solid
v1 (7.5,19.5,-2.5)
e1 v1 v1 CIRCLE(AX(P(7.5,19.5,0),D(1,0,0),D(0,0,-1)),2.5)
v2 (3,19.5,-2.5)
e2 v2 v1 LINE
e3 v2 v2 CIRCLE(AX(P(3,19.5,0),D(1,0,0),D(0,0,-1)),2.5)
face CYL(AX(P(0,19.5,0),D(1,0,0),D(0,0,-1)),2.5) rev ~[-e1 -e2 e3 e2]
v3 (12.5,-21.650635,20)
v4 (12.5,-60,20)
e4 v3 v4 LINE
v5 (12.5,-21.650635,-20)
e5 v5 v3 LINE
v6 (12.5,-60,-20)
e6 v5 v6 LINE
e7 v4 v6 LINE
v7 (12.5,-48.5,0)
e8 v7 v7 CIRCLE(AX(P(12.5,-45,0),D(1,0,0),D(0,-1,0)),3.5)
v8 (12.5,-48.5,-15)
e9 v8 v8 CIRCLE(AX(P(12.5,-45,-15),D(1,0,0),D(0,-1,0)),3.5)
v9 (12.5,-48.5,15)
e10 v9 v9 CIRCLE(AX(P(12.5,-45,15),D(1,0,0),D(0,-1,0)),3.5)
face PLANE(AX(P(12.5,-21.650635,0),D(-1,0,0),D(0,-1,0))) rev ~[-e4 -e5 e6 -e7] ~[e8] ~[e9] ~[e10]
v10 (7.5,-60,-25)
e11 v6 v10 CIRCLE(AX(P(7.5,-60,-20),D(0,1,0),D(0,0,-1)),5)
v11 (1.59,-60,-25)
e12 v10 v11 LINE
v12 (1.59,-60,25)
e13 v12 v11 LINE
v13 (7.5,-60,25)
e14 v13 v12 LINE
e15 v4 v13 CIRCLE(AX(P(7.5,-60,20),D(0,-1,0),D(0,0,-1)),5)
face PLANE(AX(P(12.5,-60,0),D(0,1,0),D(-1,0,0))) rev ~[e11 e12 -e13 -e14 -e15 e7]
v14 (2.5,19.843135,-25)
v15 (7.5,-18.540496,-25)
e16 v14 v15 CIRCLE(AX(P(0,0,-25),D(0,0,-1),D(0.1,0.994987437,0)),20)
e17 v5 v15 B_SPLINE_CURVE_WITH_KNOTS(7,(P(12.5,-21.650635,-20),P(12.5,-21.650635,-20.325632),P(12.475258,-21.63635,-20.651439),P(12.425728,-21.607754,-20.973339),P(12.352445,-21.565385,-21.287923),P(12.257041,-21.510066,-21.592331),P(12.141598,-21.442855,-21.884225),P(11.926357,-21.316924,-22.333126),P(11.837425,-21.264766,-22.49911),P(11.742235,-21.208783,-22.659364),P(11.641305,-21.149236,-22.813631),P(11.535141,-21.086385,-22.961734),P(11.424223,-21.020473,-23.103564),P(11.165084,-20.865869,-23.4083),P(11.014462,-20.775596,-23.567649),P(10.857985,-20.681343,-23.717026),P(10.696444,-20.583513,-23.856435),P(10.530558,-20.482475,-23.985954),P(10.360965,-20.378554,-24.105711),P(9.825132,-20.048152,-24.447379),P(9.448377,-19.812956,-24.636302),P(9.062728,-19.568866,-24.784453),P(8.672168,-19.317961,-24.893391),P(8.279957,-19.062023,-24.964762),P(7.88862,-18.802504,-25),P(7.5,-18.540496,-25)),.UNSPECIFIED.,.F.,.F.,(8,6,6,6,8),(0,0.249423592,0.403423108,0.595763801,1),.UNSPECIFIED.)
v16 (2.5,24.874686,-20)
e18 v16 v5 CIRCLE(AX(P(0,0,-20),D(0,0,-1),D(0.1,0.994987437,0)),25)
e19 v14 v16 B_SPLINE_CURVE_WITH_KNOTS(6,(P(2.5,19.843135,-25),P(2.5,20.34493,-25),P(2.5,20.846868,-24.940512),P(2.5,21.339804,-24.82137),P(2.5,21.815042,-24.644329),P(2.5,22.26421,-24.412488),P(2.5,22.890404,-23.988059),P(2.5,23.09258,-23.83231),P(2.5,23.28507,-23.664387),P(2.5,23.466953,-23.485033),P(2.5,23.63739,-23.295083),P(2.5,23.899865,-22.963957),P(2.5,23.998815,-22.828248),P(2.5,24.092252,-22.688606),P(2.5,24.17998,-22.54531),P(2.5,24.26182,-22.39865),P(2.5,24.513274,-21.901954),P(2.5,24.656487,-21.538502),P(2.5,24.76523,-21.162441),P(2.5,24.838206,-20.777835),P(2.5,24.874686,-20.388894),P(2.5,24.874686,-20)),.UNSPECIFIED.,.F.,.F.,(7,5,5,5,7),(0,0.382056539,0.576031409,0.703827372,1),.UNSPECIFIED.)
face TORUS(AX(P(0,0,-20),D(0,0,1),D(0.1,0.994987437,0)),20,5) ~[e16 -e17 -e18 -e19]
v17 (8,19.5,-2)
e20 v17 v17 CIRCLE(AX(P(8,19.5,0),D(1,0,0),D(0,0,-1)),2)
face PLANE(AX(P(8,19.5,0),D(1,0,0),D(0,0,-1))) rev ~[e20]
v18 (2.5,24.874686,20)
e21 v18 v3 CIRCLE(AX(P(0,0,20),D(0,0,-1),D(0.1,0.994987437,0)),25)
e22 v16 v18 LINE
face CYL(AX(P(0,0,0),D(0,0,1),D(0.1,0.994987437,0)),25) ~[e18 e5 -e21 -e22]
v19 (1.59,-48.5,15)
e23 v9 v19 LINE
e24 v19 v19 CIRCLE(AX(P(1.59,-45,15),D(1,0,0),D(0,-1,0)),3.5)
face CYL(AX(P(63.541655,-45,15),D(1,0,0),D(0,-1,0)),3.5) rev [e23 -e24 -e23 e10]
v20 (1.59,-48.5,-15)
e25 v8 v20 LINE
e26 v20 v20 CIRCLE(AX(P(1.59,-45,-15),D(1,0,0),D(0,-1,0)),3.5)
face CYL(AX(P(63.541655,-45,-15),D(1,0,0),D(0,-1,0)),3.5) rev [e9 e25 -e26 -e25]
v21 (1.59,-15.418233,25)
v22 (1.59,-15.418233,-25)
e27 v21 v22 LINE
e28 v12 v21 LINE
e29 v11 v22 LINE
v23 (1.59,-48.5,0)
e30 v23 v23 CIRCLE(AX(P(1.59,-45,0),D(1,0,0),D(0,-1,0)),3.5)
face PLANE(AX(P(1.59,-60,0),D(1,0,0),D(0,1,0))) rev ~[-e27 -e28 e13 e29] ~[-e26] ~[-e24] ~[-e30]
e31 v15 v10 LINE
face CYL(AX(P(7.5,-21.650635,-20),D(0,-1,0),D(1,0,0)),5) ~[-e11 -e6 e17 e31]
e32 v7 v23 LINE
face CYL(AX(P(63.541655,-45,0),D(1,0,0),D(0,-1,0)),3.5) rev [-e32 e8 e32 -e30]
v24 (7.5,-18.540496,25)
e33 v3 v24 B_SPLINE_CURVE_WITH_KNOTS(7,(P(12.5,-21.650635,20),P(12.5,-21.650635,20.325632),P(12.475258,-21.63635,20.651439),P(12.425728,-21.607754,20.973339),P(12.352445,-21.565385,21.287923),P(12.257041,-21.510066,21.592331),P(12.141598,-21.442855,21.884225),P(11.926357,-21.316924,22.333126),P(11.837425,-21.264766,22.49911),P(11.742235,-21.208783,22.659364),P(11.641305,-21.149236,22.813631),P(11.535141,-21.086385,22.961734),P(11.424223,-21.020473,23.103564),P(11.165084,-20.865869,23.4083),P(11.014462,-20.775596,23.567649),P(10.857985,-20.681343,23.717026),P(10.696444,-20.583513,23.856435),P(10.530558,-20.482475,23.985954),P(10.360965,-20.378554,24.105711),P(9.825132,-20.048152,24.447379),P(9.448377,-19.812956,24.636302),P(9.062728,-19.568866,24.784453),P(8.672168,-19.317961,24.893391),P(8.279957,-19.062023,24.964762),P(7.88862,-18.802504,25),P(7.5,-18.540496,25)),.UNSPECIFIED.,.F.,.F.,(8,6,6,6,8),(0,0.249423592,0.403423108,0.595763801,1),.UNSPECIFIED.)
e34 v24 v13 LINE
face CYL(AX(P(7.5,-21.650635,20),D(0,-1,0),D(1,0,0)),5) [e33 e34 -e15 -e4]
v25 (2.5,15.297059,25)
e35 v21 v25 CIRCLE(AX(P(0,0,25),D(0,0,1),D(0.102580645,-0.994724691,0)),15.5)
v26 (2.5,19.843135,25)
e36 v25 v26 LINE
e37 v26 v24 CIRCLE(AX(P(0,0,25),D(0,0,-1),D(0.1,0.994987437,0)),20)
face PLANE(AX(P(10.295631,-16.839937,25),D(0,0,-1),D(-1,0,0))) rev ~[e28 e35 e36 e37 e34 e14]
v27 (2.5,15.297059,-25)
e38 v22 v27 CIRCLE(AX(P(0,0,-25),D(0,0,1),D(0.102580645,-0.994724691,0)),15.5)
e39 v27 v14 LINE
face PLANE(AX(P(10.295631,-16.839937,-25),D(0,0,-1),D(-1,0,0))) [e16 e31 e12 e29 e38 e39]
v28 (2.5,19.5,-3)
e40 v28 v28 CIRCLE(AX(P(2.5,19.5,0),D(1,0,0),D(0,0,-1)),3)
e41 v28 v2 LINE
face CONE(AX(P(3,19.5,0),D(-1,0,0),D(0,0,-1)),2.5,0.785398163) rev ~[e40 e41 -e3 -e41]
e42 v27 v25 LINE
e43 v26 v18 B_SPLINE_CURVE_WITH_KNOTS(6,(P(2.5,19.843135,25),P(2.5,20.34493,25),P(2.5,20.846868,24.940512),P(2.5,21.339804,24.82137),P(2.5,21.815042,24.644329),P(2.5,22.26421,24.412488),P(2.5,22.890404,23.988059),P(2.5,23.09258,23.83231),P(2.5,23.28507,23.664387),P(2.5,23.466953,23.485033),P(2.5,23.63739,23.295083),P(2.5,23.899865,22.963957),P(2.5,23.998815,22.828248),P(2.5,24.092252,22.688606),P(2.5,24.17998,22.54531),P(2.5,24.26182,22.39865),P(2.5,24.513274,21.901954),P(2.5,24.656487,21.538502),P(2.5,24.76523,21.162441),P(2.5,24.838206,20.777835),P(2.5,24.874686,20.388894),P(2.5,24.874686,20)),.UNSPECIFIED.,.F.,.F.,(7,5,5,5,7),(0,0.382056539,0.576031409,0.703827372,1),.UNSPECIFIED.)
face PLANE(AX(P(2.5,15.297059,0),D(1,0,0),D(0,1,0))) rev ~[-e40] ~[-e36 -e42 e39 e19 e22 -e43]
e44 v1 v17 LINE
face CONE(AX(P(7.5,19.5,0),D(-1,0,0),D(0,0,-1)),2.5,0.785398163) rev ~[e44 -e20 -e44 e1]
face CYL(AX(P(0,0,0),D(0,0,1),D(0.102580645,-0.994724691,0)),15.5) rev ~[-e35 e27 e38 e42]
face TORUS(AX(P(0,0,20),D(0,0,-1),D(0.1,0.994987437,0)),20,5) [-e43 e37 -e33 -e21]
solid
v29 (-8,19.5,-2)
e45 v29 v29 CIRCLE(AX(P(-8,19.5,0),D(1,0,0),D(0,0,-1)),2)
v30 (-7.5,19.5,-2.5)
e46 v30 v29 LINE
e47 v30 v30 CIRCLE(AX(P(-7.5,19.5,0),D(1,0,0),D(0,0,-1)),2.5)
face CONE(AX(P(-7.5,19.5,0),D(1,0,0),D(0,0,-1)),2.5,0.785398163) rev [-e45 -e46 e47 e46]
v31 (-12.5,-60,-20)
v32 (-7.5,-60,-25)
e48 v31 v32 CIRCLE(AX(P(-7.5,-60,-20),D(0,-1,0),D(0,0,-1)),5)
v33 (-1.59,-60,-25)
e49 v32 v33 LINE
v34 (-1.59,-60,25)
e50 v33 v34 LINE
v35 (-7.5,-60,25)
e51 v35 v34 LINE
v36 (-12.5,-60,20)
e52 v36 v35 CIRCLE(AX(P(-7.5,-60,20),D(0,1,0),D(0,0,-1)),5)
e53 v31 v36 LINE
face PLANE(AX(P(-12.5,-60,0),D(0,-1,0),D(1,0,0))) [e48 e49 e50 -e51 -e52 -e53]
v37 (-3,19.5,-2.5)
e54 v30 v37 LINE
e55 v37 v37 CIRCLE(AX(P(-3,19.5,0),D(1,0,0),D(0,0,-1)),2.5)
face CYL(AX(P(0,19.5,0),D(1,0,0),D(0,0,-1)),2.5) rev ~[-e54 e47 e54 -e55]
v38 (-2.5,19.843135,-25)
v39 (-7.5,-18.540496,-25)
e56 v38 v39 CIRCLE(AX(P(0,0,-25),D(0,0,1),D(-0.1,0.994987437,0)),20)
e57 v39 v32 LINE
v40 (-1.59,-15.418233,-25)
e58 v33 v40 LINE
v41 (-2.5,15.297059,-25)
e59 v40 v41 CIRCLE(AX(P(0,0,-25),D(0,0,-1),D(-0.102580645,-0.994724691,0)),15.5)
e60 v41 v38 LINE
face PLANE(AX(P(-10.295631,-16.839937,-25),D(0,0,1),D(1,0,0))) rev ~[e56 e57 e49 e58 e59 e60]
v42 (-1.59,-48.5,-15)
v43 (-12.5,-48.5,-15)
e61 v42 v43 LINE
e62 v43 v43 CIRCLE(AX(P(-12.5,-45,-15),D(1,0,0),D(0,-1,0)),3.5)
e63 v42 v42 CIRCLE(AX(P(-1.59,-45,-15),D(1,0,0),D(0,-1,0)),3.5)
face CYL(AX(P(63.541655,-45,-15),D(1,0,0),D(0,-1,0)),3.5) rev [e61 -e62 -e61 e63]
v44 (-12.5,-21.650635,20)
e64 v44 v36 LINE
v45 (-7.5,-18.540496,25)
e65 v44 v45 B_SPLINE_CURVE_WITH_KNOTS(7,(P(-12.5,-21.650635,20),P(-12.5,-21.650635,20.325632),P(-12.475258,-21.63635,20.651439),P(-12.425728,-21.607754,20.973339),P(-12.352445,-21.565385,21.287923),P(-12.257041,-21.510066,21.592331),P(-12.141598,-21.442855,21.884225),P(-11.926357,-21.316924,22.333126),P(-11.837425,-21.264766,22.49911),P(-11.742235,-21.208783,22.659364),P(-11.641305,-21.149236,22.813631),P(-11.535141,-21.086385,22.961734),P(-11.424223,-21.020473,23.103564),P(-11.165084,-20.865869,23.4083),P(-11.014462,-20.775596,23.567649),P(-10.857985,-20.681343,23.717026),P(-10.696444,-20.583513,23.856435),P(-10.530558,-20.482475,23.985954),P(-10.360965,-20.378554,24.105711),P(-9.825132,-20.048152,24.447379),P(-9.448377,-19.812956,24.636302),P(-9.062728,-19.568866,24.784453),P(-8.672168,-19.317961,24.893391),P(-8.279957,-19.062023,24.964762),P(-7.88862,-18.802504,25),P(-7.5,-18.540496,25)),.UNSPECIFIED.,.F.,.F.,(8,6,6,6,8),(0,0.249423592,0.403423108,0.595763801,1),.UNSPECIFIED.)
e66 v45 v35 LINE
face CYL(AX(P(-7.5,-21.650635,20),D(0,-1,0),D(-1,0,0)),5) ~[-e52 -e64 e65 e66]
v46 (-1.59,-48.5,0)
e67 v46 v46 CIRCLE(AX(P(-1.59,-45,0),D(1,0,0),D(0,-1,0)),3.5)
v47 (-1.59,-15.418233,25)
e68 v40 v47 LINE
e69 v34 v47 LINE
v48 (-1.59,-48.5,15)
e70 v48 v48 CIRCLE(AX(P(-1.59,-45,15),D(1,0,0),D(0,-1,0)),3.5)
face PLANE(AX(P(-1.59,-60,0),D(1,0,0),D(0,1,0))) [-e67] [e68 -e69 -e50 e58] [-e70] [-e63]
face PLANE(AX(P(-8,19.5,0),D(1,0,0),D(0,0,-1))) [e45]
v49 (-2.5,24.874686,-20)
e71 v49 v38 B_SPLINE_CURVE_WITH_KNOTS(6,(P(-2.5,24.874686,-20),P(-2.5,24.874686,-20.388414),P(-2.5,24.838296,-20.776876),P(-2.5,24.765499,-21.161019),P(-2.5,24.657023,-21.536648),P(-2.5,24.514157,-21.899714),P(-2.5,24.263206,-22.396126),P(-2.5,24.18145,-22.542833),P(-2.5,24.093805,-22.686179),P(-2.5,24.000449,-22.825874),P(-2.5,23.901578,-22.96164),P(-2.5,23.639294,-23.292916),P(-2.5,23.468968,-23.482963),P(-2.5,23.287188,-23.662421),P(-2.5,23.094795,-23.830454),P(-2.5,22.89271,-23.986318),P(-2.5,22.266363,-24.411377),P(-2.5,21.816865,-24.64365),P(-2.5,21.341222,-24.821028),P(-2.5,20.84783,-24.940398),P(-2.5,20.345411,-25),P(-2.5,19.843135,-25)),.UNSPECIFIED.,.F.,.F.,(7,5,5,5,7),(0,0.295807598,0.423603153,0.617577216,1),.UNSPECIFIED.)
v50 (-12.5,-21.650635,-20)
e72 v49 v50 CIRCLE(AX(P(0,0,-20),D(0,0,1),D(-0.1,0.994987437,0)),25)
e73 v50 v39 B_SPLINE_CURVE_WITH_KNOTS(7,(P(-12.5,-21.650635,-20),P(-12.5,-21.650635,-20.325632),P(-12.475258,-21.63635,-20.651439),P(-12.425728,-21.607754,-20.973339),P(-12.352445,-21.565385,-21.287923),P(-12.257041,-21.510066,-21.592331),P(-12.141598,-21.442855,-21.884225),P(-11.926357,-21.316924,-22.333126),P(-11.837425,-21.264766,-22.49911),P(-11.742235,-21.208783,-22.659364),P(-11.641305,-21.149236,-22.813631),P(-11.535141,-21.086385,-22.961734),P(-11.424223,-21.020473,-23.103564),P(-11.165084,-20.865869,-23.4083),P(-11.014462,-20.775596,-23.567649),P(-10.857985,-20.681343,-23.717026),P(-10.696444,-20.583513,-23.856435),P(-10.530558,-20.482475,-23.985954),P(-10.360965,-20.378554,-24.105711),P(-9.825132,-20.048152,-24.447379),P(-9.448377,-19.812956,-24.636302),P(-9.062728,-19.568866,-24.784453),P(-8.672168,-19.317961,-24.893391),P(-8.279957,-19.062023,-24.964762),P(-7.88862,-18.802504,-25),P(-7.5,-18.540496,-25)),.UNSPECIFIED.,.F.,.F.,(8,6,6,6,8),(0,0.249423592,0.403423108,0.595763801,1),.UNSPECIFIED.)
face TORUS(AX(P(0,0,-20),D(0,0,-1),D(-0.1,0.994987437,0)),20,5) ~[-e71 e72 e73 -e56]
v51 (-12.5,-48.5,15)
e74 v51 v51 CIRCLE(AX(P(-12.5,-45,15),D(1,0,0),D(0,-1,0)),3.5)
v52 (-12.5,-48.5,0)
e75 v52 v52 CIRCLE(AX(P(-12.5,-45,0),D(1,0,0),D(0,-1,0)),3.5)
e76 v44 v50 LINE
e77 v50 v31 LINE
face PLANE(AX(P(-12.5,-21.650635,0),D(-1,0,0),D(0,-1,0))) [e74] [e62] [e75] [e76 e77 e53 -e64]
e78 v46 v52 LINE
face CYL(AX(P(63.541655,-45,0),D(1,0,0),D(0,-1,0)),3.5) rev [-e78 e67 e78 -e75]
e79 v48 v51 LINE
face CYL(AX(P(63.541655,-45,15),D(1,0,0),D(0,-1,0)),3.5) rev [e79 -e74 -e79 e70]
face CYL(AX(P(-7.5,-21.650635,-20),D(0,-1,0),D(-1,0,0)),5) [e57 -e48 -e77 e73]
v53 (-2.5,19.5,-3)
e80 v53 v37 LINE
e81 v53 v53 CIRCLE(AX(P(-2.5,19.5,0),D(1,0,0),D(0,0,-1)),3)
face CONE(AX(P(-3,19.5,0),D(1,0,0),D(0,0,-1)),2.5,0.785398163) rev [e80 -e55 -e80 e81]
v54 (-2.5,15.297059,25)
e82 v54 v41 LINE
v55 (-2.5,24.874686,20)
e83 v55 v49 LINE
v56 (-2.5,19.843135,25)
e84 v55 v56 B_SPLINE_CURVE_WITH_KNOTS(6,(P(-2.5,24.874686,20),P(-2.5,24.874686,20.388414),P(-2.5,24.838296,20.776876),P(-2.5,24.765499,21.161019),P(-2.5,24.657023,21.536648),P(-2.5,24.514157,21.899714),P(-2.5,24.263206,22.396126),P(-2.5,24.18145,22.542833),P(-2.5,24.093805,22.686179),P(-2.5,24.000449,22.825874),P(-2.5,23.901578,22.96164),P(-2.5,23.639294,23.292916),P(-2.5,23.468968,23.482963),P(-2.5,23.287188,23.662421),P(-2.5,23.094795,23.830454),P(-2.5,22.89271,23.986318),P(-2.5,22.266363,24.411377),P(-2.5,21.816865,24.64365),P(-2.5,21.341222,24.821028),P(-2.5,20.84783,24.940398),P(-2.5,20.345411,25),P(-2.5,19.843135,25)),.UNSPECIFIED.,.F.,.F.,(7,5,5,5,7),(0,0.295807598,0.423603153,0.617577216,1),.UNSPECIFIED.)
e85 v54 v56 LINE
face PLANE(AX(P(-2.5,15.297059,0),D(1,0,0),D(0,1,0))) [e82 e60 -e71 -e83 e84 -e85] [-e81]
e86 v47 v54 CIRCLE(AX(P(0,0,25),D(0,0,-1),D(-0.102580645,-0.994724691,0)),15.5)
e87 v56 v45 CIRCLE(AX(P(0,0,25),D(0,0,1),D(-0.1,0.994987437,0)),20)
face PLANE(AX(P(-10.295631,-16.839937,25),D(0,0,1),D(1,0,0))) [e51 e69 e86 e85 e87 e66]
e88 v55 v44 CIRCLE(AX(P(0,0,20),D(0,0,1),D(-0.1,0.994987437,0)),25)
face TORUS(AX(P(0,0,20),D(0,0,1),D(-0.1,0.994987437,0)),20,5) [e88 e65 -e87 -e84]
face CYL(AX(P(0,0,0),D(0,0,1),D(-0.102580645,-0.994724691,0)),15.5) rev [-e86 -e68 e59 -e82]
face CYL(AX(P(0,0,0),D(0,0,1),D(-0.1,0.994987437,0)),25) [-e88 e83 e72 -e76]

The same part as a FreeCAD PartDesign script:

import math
import FreeCAD as App
import Part
import Sketcher
Q = App.Units.Quantity


def edges_at(feature, points):
    """Names of the edges that pass closest to the given points."""
    edges = feature.Shape.Edges
    near = lambda p: min(range(len(edges)), key=lambda i: edges[i].distToShape(Part.Vertex(*p))[0])
    return sorted({f"Edge{near(p) + 1}" for p in points})

doc = App.newDocument("Part")
body = doc.addObject("PartDesign::Body", "Body")

# Sketch on XY plane
sketch1 = body.newObject("Sketcher::SketchObject", "Sketch")
sketch1.AttachmentSupport = (doc.getObject("XY_Plane"), [""])
sketch1.MapMode = "FlatFace"
sketch1.addGeometry([
    Part.LineSegment(App.Vector(-12.5, -21.650635, 0), App.Vector(-12.5, -60, 0)),  # 0
    Part.LineSegment(App.Vector(-12.5, -60, 0), App.Vector(-1.59, -60, 0)),  # 1
    Part.LineSegment(App.Vector(-1.59, -60, 0), App.Vector(-1.59, -15.418233, 0)),  # 2
    Part.ArcOfCircle(Part.Circle(App.Vector(0, 0, 0), App.Vector(0, 0, 1), 15.5), math.radians(99.281799), math.radians(264.112205)),  # 3
    Part.LineSegment(App.Vector(-2.5, 15.297059, 0), App.Vector(-2.5, 24.874686, 0)),  # 4
    Part.ArcOfCircle(Part.Circle(App.Vector(0, 0, 0), App.Vector(0, 0, 1), 25), math.radians(95.73917), math.radians(240)),  # 5
], False)
sketch1.addConstraint([
    Sketcher.Constraint("Coincident", 0, 2, 1, 1),
    Sketcher.Constraint("Coincident", 1, 2, 2, 1),
    Sketcher.Constraint("Coincident", 2, 2, 3, 2),
    Sketcher.Constraint("Coincident", 3, 1, 4, 1),
    Sketcher.Constraint("Coincident", 4, 2, 5, 1),
    Sketcher.Constraint("Coincident", 5, 2, 0, 1),
    Sketcher.Constraint("Vertical", 0),
    Sketcher.Constraint("Horizontal", 1),
    Sketcher.Constraint("Vertical", 2),
    Sketcher.Constraint("Vertical", 4),
    Sketcher.Constraint("Coincident", 3, 3, -1, 1),
    Sketcher.Constraint("Coincident", 5, 3, -1, 1),
    Sketcher.Constraint("Radius", 5, Q("25 mm")),
    Sketcher.Constraint("Radius", 3, Q("15.5 mm")),
    Sketcher.Constraint("DistanceY", 0, 2, -1, 1, Q("60 mm")),
    Sketcher.Constraint("DistanceX", 0, 2, 3, 1, Q("10 mm")),
    Sketcher.Constraint("DistanceX", 1, 1, 1, 2, Q("10.91 mm")),
    Sketcher.Constraint("DistanceX", 0, 2, -1, 1, Q("12.5 mm")),
])
pad1 = body.newObject("PartDesign::Pad", "Pad")
pad1.Profile = sketch1
pad1.Length = 50
pad1.Midplane = True
doc.recompute()

fillet = body.newObject("PartDesign::Fillet", "Fillet")
fillet.Base = (pad1, edges_at(pad1, [
    (-24.442, 5.253, 25),
    (-12.5, -40.825, -25),
    (-24.442, 5.253, -25),
    (-12.5, -40.825, 25),
]))
fillet.Radius = 5
body2 = doc.addObject("PartDesign::Body", "Body001")

# Sketch on XY plane
sketch2 = body2.newObject("Sketcher::SketchObject", "Sketch001")
sketch2.AttachmentSupport = (doc.getObject("XY_Plane001"), [""])
sketch2.MapMode = "FlatFace"
sketch2.addGeometry([
    Part.LineSegment(App.Vector(12.5, -60, 0), App.Vector(12.5, -21.650635, 0)),  # 0
    Part.ArcOfCircle(Part.Circle(App.Vector(0, 0, 0), App.Vector(0, 0, 1), 25), math.radians(-60), math.radians(84.26083)),  # 1
    Part.LineSegment(App.Vector(2.5, 24.874686, 0), App.Vector(2.5, 15.297059, 0)),  # 2
    Part.ArcOfCircle(Part.Circle(App.Vector(0, 0, 0), App.Vector(0, 0, 1), 15.5), math.radians(-84.112205), math.radians(80.718201)),  # 3
    Part.LineSegment(App.Vector(1.59, -15.418233, 0), App.Vector(1.59, -60, 0)),  # 4
    Part.LineSegment(App.Vector(1.59, -60, 0), App.Vector(12.5, -60, 0)),  # 5
], False)
sketch2.addConstraint([
    Sketcher.Constraint("Coincident", 0, 2, 1, 1),
    Sketcher.Constraint("Coincident", 1, 2, 2, 1),
    Sketcher.Constraint("Coincident", 2, 2, 3, 2),
    Sketcher.Constraint("Coincident", 3, 1, 4, 1),
    Sketcher.Constraint("Coincident", 4, 2, 5, 1),
    Sketcher.Constraint("Coincident", 5, 2, 0, 1),
    Sketcher.Constraint("Vertical", 0),
    Sketcher.Constraint("Vertical", 2),
    Sketcher.Constraint("Vertical", 4),
    Sketcher.Constraint("Horizontal", 5),
    Sketcher.Constraint("Coincident", 1, 3, -1, 1),
    Sketcher.Constraint("Coincident", 3, 3, -1, 1),
    Sketcher.Constraint("Radius", 1, Q("25 mm")),
    Sketcher.Constraint("Radius", 3, Q("15.5 mm")),
    Sketcher.Constraint("DistanceY", 4, 2, -1, 1, Q("60 mm")),
    Sketcher.Constraint("DistanceX", 1, 2, 0, 2, Q("10 mm")),
    Sketcher.Constraint("DistanceX", 5, 1, 5, 2, Q("10.91 mm")),
    Sketcher.Constraint("DistanceX", -1, 1, 0, 2, Q("12.5 mm")),
])
pad2 = body2.newObject("PartDesign::Pad", "Pad001")
pad2.Profile = sketch2
pad2.Length = 50
pad2.Midplane = True
doc.recompute()

fillet2 = body2.newObject("PartDesign::Fillet", "Fillet001")
fillet2.Base = (pad2, edges_at(pad2, [
    (12.5, -40.825, -25),
    (24.442, 5.253, -25),
    (12.5, -40.825, 25),
    (24.442, 5.253, 25),
]))
fillet2.Radius = 5
body3 = doc.addObject("PartDesign::Body", "Body002")
body3.AllowCompound = True

# Sketch on YZ plane
sketch3 = body3.newObject("Sketcher::SketchObject", "Sketch002")
sketch3.AttachmentSupport = (doc.getObject("YZ_Plane002"), [""])
sketch3.MapMode = "FlatFace"
sketch3.AttachmentOffset = App.Placement(App.Vector(0, 0, -12.5), App.Rotation())
sketch3.addGeometry([
    Part.Circle(App.Vector(-45, 0, 0), App.Vector(0, 0, 1), 3.5),
    Part.Circle(App.Vector(-45, -15, 0), App.Vector(0, 0, 1), 3.5),
    Part.Circle(App.Vector(-45, 15, 0), App.Vector(0, 0, 1), 3.5),
], False)
sketch3.addConstraint([
    Sketcher.Constraint("Equal", 0, 1),
    Sketcher.Constraint("Equal", 1, 2),
    Sketcher.Constraint("Symmetric", 1, 3, 2, 3, -1),
    Sketcher.Constraint("PointOnObject", 0, 3, -1),
    Sketcher.Constraint("Vertical", 0, 3, 1, 3),
    Sketcher.Constraint("Diameter", 0, Q("7 mm")),
    Sketcher.Constraint("DistanceX", 0, 3, -1, 1, Q("45 mm")),
    Sketcher.Constraint("DistanceY", 1, 3, -1, 1, Q("15 mm")),
])
pad3 = body3.newObject("PartDesign::Pad", "Pad002")
pad3.Profile = sketch3
pad3.Type = "TwoLengths"
pad3.Length = 76.041655
pad3.Length2 = 76.041655
pad3.Reversed = True
doc.recompute()

body4 = doc.addObject("PartDesign::Body", "Body003")
body4.BaseFeature = body3
boolean = body.newObject("PartDesign::Boolean", "Boolean")
boolean.Type = "Cut"
boolean.addObjects([body4])
doc.recompute()

boolean2 = body2.newObject("PartDesign::Boolean", "Boolean001")
boolean2.Type = "Cut"
boolean2.addObjects([body3])
body5 = doc.addObject("PartDesign::Body", "Body004")

# Sketch on YZ plane
sketch4 = body5.newObject("Sketcher::SketchObject", "Sketch003")
sketch4.AttachmentSupport = (doc.getObject("YZ_Plane004"), [""])
sketch4.MapMode = "FlatFace"
sketch4.addGeometry(Part.Circle(App.Vector(19.5, 0, 0), App.Vector(0, 0, 1), 2.5), False)
sketch4.addConstraint([
    Sketcher.Constraint("PointOnObject", 0, 3, -1),
    Sketcher.Constraint("Diameter", 0, Q("5 mm")),
    Sketcher.Constraint("DistanceX", -1, 1, 0, 3, Q("19.5 mm")),
])
pad4 = body5.newObject("PartDesign::Pad", "Pad003")
pad4.Profile = sketch4
pad4.Length = 16
pad4.Midplane = True
doc.recompute()

body6 = doc.addObject("PartDesign::Body", "Body005")
body6.BaseFeature = body5
boolean3 = body.newObject("PartDesign::Boolean", "Boolean002")
boolean3.Type = "Cut"
boolean3.addObjects([body6])
doc.recompute()

chamfer = body.newObject("PartDesign::Chamfer", "Chamfer")
chamfer.Base = (boolean3, edges_at(boolean3, [(-8, 19.5, 2.5), (-2.5, 19.5, 2.5)]))
chamfer.Size = 0.5
doc.recompute()

boolean4 = body2.newObject("PartDesign::Boolean", "Boolean003")
boolean4.Type = "Cut"
boolean4.addObjects([body5])
doc.recompute()

chamfer2 = body2.newObject("PartDesign::Chamfer", "Chamfer001")
chamfer2.Base = (boolean4, edges_at(boolean4, [(2.5, 19.5, 2.5), (8, 19.5, 2.5)]))
chamfer2.Size = 0.5

doc.recompute()
